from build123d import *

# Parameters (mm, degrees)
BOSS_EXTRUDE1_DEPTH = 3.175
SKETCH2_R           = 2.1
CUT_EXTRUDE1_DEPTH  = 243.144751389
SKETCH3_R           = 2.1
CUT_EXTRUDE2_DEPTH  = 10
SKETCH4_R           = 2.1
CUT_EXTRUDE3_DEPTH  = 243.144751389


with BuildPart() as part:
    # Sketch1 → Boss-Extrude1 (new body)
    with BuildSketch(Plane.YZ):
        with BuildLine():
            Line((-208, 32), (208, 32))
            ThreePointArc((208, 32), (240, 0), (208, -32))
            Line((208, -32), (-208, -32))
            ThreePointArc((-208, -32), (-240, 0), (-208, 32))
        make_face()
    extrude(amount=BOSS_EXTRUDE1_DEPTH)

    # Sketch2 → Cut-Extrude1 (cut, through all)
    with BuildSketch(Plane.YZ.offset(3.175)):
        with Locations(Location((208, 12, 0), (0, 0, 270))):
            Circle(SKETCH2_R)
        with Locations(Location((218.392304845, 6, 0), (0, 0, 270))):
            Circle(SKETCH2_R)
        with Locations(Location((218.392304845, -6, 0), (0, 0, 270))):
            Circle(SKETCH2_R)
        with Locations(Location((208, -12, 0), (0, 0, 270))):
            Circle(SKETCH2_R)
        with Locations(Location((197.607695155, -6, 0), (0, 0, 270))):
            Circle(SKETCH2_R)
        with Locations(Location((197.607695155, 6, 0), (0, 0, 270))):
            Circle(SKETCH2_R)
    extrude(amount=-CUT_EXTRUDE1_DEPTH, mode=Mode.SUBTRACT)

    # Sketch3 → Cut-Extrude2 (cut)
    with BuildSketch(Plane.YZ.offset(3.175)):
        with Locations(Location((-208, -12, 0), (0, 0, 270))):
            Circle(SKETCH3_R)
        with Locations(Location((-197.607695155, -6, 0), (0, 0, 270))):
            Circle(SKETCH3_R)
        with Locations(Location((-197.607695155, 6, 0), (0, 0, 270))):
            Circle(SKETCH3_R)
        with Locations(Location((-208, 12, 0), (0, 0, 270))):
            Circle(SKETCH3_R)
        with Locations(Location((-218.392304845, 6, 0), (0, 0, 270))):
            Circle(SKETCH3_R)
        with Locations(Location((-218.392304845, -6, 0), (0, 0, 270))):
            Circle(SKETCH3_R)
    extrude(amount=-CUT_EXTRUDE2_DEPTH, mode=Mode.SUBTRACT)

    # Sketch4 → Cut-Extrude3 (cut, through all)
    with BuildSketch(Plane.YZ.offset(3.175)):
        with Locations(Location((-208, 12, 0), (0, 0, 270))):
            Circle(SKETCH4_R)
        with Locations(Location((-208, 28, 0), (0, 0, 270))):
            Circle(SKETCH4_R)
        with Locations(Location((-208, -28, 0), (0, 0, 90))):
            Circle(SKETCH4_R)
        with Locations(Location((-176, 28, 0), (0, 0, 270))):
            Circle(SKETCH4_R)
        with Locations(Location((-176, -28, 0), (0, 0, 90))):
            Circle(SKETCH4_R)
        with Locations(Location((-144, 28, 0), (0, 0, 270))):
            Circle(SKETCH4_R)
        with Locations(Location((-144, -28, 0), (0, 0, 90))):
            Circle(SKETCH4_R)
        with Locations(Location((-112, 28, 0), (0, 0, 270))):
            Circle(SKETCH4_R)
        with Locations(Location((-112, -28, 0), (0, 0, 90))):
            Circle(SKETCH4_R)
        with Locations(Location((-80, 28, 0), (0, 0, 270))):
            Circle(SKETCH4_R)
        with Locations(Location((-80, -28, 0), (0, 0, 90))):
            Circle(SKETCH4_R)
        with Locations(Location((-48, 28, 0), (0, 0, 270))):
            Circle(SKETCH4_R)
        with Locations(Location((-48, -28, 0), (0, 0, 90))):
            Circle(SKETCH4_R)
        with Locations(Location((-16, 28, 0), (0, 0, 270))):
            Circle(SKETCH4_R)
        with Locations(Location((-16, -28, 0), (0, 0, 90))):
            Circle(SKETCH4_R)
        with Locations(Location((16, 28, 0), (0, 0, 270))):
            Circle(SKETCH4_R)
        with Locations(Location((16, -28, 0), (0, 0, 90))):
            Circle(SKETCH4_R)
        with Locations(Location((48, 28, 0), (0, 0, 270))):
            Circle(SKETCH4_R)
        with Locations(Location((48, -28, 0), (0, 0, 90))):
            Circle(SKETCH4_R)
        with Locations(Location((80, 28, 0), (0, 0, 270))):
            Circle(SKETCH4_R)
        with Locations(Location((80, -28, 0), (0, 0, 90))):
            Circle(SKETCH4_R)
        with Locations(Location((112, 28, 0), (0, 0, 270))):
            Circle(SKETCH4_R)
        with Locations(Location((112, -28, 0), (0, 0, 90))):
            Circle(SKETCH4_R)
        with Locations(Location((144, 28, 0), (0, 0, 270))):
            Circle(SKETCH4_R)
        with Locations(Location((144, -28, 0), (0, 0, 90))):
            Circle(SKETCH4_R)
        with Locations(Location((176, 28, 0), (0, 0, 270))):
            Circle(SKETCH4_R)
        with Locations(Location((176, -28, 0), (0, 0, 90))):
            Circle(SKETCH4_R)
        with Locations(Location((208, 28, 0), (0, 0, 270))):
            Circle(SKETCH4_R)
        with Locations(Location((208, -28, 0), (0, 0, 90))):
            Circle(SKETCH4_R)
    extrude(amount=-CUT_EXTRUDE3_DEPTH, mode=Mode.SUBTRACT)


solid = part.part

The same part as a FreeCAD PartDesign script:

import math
import FreeCAD as App
import Part
import Sketcher

doc = App.newDocument("Part")
body = doc.addObject("PartDesign::Body", "Body")

# Sketch on YZ plane
sketch1 = body.newObject("Sketcher::SketchObject", "Sketch")
sketch1.AttachmentSupport = (doc.getObject("YZ_Plane"), [""])
sketch1.MapMode = "FlatFace"
sketch1.addGeometry([
    Part.LineSegment(App.Vector(208, 32, 0), App.Vector(-208, 32, 0)),
    Part.ArcOfCircle(Part.Circle(App.Vector(-208, 0, 0), App.Vector(0, 0, 1), 32), math.radians(90), math.radians(270)),
    Part.LineSegment(App.Vector(-208, -32, 0), App.Vector(208, -32, 0)),
    Part.ArcOfCircle(Part.Circle(App.Vector(208, 0, 0), App.Vector(0, 0, 1), 32), math.radians(-90), math.radians(90)),
], False)
sketch1.addConstraint([
    Sketcher.Constraint("Tangent", 0, 2, 1, 1),
    Sketcher.Constraint("Tangent", 1, 2, 2, 1),
    Sketcher.Constraint("Tangent", 2, 2, 3, 1),
    Sketcher.Constraint("Tangent", 3, 2, 0, 1),
    Sketcher.Constraint("Horizontal", 0),
    Sketcher.Constraint("Horizontal", 2),
    Sketcher.Constraint("Symmetric", 1, 3, 3, 3, -1, 1),
    Sketcher.Constraint("Radius", 1, 32.0),
    Sketcher.Constraint("DistanceX", 0, 2, 0, 1, 416.0),
])
pad1 = body.newObject("PartDesign::Pad", "Pad")
pad1.Profile = sketch1
pad1.Length = 3.175

# Sketch on YZ plane
sketch2 = body.newObject("Sketcher::SketchObject", "Sketch001")
sketch2.AttachmentSupport = (doc.getObject("YZ_Plane"), [""])
sketch2.MapMode = "FlatFace"
sketch2.AttachmentOffset = App.Placement(App.Vector(0, 0, 3.175), App.Rotation())
sketch2.addGeometry([
    Part.Circle(App.Vector(208, 12, 0), App.Vector(0, 0, 1), 2.1),  # 0
    Part.Circle(App.Vector(218.392305, 6, 0), App.Vector(0, 0, 1), 2.1),  # 1
    Part.Circle(App.Vector(218.392305, -6, 0), App.Vector(0, 0, 1), 2.1),  # 2
    Part.Circle(App.Vector(208, -12, 0), App.Vector(0, 0, 1), 2.1),  # 3
    Part.Circle(App.Vector(197.607695, -6, 0), App.Vector(0, 0, 1), 2.1),  # 4
    Part.Circle(App.Vector(197.607695, 6, 0), App.Vector(0, 0, 1), 2.1),  # 5
], False)
sketch2.addConstraint([
    Sketcher.Constraint("Equal", 0, 1),
    Sketcher.Constraint("Equal", 1, 2),
    Sketcher.Constraint("Equal", 2, 3),
    Sketcher.Constraint("Equal", 3, 4),
    Sketcher.Constraint("Equal", 4, 5),
    Sketcher.Constraint("Symmetric", 1, 3, 2, 3, -1),
    Sketcher.Constraint("Symmetric", 0, 3, 3, 3, -1),
    Sketcher.Constraint("Symmetric", 4, 3, 5, 3, -1),
    Sketcher.Constraint("Horizontal", 2, 3, 4, 3),
    Sketcher.Constraint("Diameter", 0, 4.2),
    Sketcher.Constraint("DistanceX", -1, 1, 0, 3, 208.0),
    Sketcher.Constraint("DistanceY", -1, 1, 0, 3, 12.0),
    Sketcher.Constraint("DistanceY", -1, 1, 1, 3, 6.0),
    Sketcher.Constraint("DistanceX", 4, 3, 2, 3, 20.78461),
    Sketcher.Constraint("DistanceX", -1, 1, 1, 3, 218.392305),
])
pocket1 = body.newObject("PartDesign::Pocket", "Pocket")
pocket1.Profile = sketch2
pocket1.Type = "ThroughAll"

# Sketch on YZ plane
sketch3 = body.newObject("Sketcher::SketchObject", "Sketch002")
sketch3.AttachmentSupport = (doc.getObject("YZ_Plane"), [""])
sketch3.MapMode = "FlatFace"
sketch3.AttachmentOffset = App.Placement(App.Vector(0, 0, 3.175), App.Rotation())
sketch3.addGeometry([
    Part.Circle(App.Vector(-208, -12, 0), App.Vector(0, 0, 1), 2.1),  # 0
    Part.Circle(App.Vector(-197.607695, -6, 0), App.Vector(0, 0, 1), 2.1),  # 1
    Part.Circle(App.Vector(-197.607695, 6, 0), App.Vector(0, 0, 1), 2.1),  # 2
    Part.Circle(App.Vector(-208, 12, 0), App.Vector(0, 0, 1), 2.1),  # 3
    Part.Circle(App.Vector(-218.392305, 6, 0), App.Vector(0, 0, 1), 2.1),  # 4
    Part.Circle(App.Vector(-218.392305, -6, 0), App.Vector(0, 0, 1), 2.1),  # 5
], False)
sketch3.addConstraint([
    Sketcher.Constraint("Equal", 0, 1),
    Sketcher.Constraint("Equal", 1, 2),
    Sketcher.Constraint("Equal", 2, 3),
    Sketcher.Constraint("Equal", 3, 4),
    Sketcher.Constraint("Equal", 4, 5),
    Sketcher.Constraint("Symmetric", 1, 3, 2, 3, -1),
    Sketcher.Constraint("Symmetric", 0, 3, 3, 3, -1),
    Sketcher.Constraint("Symmetric", 4, 3, 5, 3, -1),
    Sketcher.Constraint("Horizontal", 2, 3, 4, 3),
    Sketcher.Constraint("Diameter", 0, 4.2),
    Sketcher.Constraint("DistanceX", 0, 3, -1, 1, 208.0),
    Sketcher.Constraint("DistanceY", 0, 3, -1, 1, 12.0),
    Sketcher.Constraint("DistanceY", 1, 3, -1, 1, 6.0),
    Sketcher.Constraint("DistanceX", 4, 3, 2, 3, 20.78461),
    Sketcher.Constraint("DistanceX", 1, 3, -1, 1, 197.607695),
])
pocket2 = body.newObject("PartDesign::Pocket", "Pocket001")
pocket2.Profile = sketch3
pocket2.Length = 10

# Sketch on YZ plane
sketch4 = body.newObject("Sketcher::SketchObject", "Sketch003")
sketch4.AttachmentSupport = (doc.getObject("YZ_Plane"), [""])
sketch4.MapMode = "FlatFace"
sketch4.AttachmentOffset = App.Placement(App.Vector(0, 0, 3.175), App.Rotation())
sketch4.addGeometry([
    Part.Circle(App.Vector(-208, 12, 0), App.Vector(0, 0, 1), 2.1),  # 0
    Part.Circle(App.Vector(-208, 28, 0), App.Vector(0, 0, 1), 2.1),  # 1
    Part.Circle(App.Vector(-208, -28, 0), App.Vector(0, 0, 1), 2.1),  # 2
    Part.Circle(App.Vector(-176, 28, 0), App.Vector(0, 0, 1), 2.1),  # 3
    Part.Circle(App.Vector(-176, -28, 0), App.Vector(0, 0, 1), 2.1),  # 4
    Part.Circle(App.Vector(-144, 28, 0), App.Vector(0, 0, 1), 2.1),  # 5
    Part.Circle(App.Vector(-144, -28, 0), App.Vector(0, 0, 1), 2.1),  # 6
    Part.Circle(App.Vector(-112, 28, 0), App.Vector(0, 0, 1), 2.1),  # 7
    Part.Circle(App.Vector(-112, -28, 0), App.Vector(0, 0, 1), 2.1),  # 8
    Part.Circle(App.Vector(-80, 28, 0), App.Vector(0, 0, 1), 2.1),  # 9
    Part.Circle(App.Vector(-80, -28, 0), App.Vector(0, 0, 1), 2.1),  # 10
    Part.Circle(App.Vector(-48, 28, 0), App.Vector(0, 0, 1), 2.1),  # 11
    Part.Circle(App.Vector(-48, -28, 0), App.Vector(0, 0, 1), 2.1),  # 12
    Part.Circle(App.Vector(-16, 28, 0), App.Vector(0, 0, 1), 2.1),  # 13
    Part.Circle(App.Vector(-16, -28, 0), App.Vector(0, 0, 1), 2.1),  # 14
    Part.Circle(App.Vector(16, 28, 0), App.Vector(0, 0, 1), 2.1),  # 15
    Part.Circle(App.Vector(16, -28, 0), App.Vector(0, 0, 1), 2.1),  # 16
    Part.Circle(App.Vector(48, 28, 0), App.Vector(0, 0, 1), 2.1),  # 17
    Part.Circle(App.Vector(48, -28, 0), App.Vector(0, 0, 1), 2.1),  # 18
    Part.Circle(App.Vector(80, 28, 0), App.Vector(0, 0, 1), 2.1),  # 19
    Part.Circle(App.Vector(80, -28, 0), App.Vector(0, 0, 1), 2.1),  # 20
    Part.Circle(App.Vector(112, 28, 0), App.Vector(0, 0, 1), 2.1),  # 21
    Part.Circle(App.Vector(112, -28, 0), App.Vector(0, 0, 1), 2.1),  # 22
    Part.Circle(App.Vector(144, 28, 0), App.Vector(0, 0, 1), 2.1),  # 23
    Part.Circle(App.Vector(144, -28, 0), App.Vector(0, 0, 1), 2.1),  # 24
    Part.Circle(App.Vector(176, 28, 0), App.Vector(0, 0, 1), 2.1),  # 25
    Part.Circle(App.Vector(176, -28, 0), App.Vector(0, 0, 1), 2.1),  # 26
    Part.Circle(App.Vector(208, 28, 0), App.Vector(0, 0, 1), 2.1),  # 27
    Part.Circle(App.Vector(208, -28, 0), App.Vector(0, 0, 1), 2.1),  # 28
], False)
sketch4.addConstraint([
    Sketcher.Constraint("Equal", 0, 1),
    Sketcher.Constraint("Equal", 1, 2),
    Sketcher.Constraint("Equal", 2, 3),
    Sketcher.Constraint("Equal", 3, 4),
    Sketcher.Constraint("Equal", 4, 5),
    Sketcher.Constraint("Equal", 5, 6),
    Sketcher.Constraint("Equal", 6, 7),
    Sketcher.Constraint("Equal", 7, 8),
    Sketcher.Constraint("Equal", 8, 9),
    Sketcher.Constraint("Equal", 9, 10),
    Sketcher.Constraint("Equal", 10, 11),
    Sketcher.Constraint("Equal", 11, 12),
    Sketcher.Constraint("Equal", 12, 13),
    Sketcher.Constraint("Equal", 13, 14),
    Sketcher.Constraint("Equal", 14, 15),
    Sketcher.Constraint("Equal", 15, 16),
    Sketcher.Constraint("Equal", 16, 17),
    Sketcher.Constraint("Equal", 17, 18),
    Sketcher.Constraint("Equal", 18, 19),
    Sketcher.Constraint("Equal", 19, 20),
    Sketcher.Constraint("Equal", 20, 21),
    Sketcher.Constraint("Equal", 21, 22),
    Sketcher.Constraint("Equal", 22, 23),
    Sketcher.Constraint("Equal", 23, 24),
    Sketcher.Constraint("Equal", 24, 25),
    Sketcher.Constraint("Equal", 25, 26),
    Sketcher.Constraint("Equal", 26, 27),
    Sketcher.Constraint("Equal", 27, 28),
    Sketcher.Constraint("Symmetric", 14, 3, 15, 3, -1, 1),
    Sketcher.Constraint("Symmetric", 13, 3, 16, 3, -1, 1),
    Sketcher.Constraint("Symmetric", 12, 3, 17, 3, -1, 1),
    Sketcher.Constraint("Symmetric", 11, 3, 18, 3, -1, 1),
    Sketcher.Constraint("Symmetric", 10, 3, 19, 3, -1, 1),
    Sketcher.Constraint("Symmetric", 9, 3, 20, 3, -1, 1),
    Sketcher.Constraint("Symmetric", 8, 3, 21, 3, -1, 1),
    Sketcher.Constraint("Symmetric", 7, 3, 22, 3, -1, 1),
    Sketcher.Constraint("Symmetric", 6, 3, 23, 3, -1, 1),
    Sketcher.Constraint("Symmetric", 5, 3, 24, 3, -1, 1),
    Sketcher.Constraint("Symmetric", 4, 3, 25, 3, -1, 1),
    Sketcher.Constraint("Symmetric", 3, 3, 26, 3, -1, 1),
    Sketcher.Constraint("Symmetric", 2, 3, 27, 3, -1, 1),
    Sketcher.Constraint("Symmetric", 1, 3, 28, 3, -1, 1),
    Sketcher.Constraint("Symmetric", 13, 3, 15, 3, -2),
    Sketcher.Constraint("Symmetric", 11, 3, 17, 3, -2),
    Sketcher.Constraint("Symmetric", 9, 3, 19, 3, -2),
    Sketcher.Constraint("Symmetric", 7, 3, 21, 3, -2),
    Sketcher.Constraint("Symmetric", 5, 3, 23, 3, -2),
    Sketcher.Constraint("Symmetric", 3, 3, 25, 3, -2),
    Sketcher.Constraint("Symmetric", 1, 3, 27, 3, -2),
    Sketcher.Constraint("Horizontal", 1, 3, 3, 3),
    Sketcher.Constraint("Horizontal", 3, 3, 5, 3),
    Sketcher.Constraint("Horizontal", 5, 3, 7, 3),
    Sketcher.Constraint("Horizontal", 7, 3, 9, 3),
    Sketcher.Constraint("Horizontal", 9, 3, 11, 3),
    Sketcher.Constraint("Horizontal", 11, 3, 13, 3),
    Sketcher.Constraint("Vertical", 0, 3, 1, 3),
    Sketcher.Constraint("Diameter", 0, 4.2),
    Sketcher.Constraint("DistanceX", 0, 3, -1, 1, 208.0),
    Sketcher.Constraint("DistanceY", -1, 1, 0, 3, 12.0),
    Sketcher.Constraint("DistanceY", -1, 1, 1, 3, 28.0),
    Sketcher.Constraint("DistanceX", 3, 3, -1, 1, 176.0),
    Sketcher.Constraint("DistanceX", 5, 3, -1, 1, 144.0),
    Sketcher.Constraint("DistanceX", 7, 3, -1, 1, 112.0),
    Sketcher.Constraint("DistanceX", 9, 3, -1, 1, 80.0),
    Sketcher.Constraint("DistanceX", 11, 3, -1, 1, 48.0),
    Sketcher.Constraint("DistanceX", 13, 3, -1, 1, 16.0),
])
pocket3 = body.newObject("PartDesign::Pocket", "Pocket002")
pocket3.Profile = sketch4
pocket3.Type = "ThroughAll"

doc.recompute()
